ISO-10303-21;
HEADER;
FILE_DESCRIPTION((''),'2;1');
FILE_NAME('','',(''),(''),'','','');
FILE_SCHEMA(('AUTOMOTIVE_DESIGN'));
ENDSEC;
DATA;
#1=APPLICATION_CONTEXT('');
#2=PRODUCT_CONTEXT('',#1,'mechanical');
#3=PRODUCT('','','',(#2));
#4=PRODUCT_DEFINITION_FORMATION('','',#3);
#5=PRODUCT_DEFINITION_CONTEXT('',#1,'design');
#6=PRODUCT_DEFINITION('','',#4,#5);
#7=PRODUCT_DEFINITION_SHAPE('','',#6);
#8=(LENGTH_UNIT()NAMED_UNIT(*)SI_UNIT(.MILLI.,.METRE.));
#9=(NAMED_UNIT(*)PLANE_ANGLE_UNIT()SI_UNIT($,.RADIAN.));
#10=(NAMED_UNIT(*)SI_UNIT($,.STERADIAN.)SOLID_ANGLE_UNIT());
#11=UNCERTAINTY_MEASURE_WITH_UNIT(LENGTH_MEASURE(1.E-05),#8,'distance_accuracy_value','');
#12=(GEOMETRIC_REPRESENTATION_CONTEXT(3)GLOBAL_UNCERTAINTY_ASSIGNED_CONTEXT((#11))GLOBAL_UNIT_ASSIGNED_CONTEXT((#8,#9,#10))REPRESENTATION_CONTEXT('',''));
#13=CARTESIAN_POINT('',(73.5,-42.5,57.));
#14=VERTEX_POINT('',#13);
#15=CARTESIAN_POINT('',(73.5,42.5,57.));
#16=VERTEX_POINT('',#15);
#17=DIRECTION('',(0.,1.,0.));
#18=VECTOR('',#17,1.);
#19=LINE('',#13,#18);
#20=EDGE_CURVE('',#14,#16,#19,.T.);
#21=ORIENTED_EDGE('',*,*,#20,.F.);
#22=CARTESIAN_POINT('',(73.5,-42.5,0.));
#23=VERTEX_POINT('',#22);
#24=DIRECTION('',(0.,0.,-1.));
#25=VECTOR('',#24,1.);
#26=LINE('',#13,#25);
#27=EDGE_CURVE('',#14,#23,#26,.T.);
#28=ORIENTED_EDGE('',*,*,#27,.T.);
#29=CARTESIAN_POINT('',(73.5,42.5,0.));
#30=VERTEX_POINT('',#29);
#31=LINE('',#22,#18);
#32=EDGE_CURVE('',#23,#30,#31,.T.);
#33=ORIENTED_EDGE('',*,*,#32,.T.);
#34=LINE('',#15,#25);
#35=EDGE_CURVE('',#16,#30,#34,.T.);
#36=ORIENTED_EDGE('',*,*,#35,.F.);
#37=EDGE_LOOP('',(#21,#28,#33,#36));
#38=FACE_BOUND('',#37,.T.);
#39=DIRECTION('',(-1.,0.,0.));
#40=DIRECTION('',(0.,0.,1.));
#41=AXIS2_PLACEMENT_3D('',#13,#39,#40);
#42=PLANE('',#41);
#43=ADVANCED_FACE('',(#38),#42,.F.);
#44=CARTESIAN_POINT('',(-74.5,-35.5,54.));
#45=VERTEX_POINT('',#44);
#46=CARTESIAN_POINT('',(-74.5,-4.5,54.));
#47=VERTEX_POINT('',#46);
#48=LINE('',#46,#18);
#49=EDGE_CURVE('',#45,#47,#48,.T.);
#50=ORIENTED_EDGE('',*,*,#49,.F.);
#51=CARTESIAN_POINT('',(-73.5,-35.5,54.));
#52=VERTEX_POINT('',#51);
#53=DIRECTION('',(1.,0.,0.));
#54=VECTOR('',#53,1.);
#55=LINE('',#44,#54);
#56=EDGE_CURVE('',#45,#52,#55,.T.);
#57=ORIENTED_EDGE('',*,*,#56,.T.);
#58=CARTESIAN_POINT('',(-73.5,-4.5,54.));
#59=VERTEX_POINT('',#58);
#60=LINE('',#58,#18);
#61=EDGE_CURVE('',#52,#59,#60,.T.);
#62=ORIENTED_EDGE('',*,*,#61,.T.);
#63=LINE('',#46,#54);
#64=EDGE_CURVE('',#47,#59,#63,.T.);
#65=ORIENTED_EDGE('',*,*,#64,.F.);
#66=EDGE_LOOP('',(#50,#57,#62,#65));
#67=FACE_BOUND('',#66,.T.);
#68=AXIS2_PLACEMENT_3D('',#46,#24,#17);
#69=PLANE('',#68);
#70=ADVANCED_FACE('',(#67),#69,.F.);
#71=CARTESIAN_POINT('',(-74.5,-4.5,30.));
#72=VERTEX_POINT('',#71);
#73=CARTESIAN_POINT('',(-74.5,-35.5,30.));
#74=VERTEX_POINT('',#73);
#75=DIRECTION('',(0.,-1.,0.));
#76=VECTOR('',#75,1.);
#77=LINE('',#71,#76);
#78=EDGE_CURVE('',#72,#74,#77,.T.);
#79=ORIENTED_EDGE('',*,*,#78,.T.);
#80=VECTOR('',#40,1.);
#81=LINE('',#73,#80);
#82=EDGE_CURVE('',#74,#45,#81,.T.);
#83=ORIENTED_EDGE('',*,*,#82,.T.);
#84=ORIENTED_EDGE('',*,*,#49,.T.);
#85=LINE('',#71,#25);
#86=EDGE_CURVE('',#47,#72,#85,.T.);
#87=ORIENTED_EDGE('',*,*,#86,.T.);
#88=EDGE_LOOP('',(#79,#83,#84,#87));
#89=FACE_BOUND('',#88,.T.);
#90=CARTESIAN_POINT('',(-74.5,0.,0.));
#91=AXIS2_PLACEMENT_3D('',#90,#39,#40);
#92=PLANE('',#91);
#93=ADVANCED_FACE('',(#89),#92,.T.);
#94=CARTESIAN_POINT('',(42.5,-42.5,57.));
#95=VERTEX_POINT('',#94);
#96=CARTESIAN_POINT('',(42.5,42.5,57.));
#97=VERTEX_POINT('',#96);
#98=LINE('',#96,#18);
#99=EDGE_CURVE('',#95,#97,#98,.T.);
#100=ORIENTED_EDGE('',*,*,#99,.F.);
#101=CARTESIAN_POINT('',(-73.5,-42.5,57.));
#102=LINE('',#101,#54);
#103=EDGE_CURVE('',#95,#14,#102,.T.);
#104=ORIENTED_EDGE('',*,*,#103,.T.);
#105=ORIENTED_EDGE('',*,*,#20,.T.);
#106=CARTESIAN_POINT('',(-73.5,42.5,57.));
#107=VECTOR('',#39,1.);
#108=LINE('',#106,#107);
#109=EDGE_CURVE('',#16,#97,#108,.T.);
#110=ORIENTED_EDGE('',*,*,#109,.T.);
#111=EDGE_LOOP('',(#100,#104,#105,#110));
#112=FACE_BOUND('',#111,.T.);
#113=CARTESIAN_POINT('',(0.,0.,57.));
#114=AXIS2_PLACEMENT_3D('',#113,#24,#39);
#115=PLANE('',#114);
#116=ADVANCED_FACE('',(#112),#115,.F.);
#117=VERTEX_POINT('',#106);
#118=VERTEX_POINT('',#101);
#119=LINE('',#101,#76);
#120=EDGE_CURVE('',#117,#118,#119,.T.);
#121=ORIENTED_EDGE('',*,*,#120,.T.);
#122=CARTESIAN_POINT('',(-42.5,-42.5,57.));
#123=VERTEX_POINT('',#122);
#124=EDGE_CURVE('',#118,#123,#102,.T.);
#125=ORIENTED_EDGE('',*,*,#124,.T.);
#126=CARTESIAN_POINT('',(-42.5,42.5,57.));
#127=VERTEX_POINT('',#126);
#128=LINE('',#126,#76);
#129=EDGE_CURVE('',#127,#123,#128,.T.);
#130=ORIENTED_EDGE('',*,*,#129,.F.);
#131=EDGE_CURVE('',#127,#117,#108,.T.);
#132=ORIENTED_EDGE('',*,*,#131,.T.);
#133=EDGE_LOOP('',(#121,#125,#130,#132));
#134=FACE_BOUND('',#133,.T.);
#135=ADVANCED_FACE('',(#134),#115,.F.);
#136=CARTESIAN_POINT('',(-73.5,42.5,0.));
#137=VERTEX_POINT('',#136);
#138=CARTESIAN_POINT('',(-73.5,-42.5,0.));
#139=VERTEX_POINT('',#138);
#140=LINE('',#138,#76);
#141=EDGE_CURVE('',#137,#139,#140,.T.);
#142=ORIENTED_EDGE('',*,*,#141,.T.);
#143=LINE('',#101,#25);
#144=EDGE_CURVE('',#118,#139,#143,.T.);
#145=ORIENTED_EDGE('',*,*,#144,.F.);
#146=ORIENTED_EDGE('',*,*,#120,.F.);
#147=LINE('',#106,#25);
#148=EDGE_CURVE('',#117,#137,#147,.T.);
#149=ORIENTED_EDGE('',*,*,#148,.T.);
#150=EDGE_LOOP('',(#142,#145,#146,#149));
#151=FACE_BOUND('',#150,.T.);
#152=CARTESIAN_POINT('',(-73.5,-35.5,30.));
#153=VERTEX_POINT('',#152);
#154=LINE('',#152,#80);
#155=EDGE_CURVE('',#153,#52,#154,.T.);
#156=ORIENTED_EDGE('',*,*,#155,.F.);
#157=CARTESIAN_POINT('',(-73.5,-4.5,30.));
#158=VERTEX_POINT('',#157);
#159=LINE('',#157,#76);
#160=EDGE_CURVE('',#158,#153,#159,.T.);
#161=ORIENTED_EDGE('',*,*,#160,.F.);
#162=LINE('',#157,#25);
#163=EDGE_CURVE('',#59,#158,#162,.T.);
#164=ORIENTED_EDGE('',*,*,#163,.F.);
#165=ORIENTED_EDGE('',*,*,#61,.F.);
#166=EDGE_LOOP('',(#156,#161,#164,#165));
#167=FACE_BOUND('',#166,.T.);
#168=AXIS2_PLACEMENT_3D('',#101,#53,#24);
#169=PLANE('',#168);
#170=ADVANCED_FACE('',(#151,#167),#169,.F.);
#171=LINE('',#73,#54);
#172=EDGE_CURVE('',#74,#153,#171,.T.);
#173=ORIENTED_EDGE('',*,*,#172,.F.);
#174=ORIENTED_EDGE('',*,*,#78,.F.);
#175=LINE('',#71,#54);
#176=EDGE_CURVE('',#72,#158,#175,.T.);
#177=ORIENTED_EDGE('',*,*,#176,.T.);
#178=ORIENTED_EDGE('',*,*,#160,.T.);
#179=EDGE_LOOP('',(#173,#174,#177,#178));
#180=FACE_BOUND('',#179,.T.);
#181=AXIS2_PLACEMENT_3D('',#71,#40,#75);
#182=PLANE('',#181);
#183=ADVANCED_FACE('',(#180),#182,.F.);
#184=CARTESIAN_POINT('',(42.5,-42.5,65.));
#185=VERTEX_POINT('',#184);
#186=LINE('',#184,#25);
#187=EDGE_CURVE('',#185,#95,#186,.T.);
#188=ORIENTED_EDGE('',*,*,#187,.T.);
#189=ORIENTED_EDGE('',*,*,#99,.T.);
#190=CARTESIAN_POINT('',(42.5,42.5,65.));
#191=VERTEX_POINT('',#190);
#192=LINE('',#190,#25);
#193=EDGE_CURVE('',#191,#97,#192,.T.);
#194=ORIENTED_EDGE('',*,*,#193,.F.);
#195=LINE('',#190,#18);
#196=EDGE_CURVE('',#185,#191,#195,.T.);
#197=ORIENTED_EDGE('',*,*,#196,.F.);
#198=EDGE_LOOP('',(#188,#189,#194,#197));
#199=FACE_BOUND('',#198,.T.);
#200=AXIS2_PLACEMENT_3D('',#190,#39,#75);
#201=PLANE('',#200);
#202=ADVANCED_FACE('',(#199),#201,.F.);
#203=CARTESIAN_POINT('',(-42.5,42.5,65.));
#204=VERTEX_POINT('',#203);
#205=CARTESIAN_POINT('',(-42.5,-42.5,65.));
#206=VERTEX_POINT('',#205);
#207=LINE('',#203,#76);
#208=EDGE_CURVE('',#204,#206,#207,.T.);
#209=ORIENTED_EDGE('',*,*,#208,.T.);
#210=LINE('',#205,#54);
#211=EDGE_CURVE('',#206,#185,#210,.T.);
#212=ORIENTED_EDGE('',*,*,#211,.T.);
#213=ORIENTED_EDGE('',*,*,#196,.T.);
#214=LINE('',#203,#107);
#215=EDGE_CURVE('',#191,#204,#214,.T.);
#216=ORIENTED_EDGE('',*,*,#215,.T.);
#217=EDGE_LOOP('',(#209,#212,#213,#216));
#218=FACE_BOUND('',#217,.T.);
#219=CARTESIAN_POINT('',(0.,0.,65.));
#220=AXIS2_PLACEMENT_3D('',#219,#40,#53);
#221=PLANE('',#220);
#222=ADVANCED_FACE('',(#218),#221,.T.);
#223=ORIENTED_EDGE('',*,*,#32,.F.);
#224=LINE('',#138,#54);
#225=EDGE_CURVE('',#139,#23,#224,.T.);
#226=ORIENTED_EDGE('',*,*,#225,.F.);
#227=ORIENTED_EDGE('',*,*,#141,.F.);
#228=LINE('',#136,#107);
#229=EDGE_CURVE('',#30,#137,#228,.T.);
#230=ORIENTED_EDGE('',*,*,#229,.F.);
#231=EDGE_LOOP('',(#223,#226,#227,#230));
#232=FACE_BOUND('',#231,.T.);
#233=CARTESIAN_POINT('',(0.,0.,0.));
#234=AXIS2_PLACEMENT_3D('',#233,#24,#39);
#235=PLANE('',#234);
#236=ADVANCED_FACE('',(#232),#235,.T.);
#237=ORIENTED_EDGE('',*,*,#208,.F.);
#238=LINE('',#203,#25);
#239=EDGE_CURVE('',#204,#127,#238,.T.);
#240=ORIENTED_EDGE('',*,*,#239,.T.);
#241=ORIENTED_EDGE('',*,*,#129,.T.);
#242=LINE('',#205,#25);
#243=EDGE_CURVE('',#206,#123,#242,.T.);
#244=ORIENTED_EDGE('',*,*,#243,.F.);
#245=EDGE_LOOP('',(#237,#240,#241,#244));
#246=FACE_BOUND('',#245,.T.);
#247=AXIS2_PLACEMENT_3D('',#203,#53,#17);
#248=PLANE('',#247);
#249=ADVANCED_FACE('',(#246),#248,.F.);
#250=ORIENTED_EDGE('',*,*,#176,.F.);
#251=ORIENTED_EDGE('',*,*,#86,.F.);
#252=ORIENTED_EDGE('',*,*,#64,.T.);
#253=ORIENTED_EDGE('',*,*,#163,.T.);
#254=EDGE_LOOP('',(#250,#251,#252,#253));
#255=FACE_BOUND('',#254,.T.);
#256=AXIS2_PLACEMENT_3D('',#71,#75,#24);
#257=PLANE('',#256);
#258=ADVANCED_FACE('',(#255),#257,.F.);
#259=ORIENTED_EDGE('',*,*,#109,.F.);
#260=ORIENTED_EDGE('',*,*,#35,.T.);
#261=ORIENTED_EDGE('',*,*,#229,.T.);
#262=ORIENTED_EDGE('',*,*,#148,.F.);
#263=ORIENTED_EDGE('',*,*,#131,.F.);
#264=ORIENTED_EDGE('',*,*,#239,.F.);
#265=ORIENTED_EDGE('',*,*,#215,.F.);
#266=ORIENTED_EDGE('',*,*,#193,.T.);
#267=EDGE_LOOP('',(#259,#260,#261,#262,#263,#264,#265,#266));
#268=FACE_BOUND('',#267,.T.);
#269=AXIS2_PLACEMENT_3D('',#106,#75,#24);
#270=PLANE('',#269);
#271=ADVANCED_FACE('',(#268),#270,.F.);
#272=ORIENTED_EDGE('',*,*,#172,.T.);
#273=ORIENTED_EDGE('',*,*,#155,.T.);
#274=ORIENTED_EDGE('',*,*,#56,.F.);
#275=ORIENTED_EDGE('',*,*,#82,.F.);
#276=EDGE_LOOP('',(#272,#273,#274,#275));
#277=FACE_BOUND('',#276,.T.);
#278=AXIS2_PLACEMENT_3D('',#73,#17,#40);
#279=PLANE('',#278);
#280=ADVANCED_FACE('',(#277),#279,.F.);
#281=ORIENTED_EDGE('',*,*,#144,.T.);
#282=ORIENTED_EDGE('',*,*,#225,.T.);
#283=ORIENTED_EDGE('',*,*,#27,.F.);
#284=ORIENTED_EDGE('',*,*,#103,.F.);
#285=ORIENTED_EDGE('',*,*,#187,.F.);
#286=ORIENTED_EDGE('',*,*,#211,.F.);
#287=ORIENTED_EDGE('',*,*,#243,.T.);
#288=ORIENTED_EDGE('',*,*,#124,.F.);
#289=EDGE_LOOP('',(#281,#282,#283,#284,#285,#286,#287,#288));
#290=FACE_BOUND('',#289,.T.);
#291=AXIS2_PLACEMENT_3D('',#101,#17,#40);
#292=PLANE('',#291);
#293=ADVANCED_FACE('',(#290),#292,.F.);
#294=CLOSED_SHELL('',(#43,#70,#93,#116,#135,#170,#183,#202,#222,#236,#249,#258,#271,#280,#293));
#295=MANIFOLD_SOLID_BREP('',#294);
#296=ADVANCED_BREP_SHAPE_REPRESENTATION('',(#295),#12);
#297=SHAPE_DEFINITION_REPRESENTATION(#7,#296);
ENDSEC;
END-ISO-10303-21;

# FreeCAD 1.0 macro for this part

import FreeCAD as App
import Part
import Sketcher

doc = App.newDocument("Part")
params = doc.addObject("Spreadsheet::Sheet", "Params")
for row, (alias, value) in enumerate([
    ("sketch1_width", "147 mm"),
    ("sketch1_height", "85 mm"),
    ("pad1_length", "57 mm"),
    ("sketch2_width", "85 mm"),
    ("pad2_length", "8 mm"),
    ("sketch3_width", "31 mm"),
    ("sketch3_height", "24 mm"),
    ("pad3_length", "1 mm"),
], start=1):
    params.set(f"A{row}", alias)
    params.set(f"B{row}", "=" + value)
    params.setAlias(f"B{row}", alias)

body = doc.addObject("PartDesign::Body", "Body")

sketch1 = body.newObject("Sketcher::SketchObject", "Sketch")
sketch1.AttachmentSupport = (doc.getObject("XY_Plane"), [""])
sketch1.MapMode = "FlatFace"
sketch1.addGeometry([
    Part.LineSegment(App.Vector(-73.5, 42.5, 0), App.Vector(-73.5, -42.5, 0)),
    Part.LineSegment(App.Vector(-73.5, -42.5, 0), App.Vector(73.5, -42.5, 0)),
    Part.LineSegment(App.Vector(73.5, -42.5, 0), App.Vector(73.5, 42.5, 0)),
    Part.LineSegment(App.Vector(73.5, 42.5, 0), App.Vector(-73.5, 42.5, 0)),
], False)
sketch1.addConstraint([
    Sketcher.Constraint("Coincident", 0, 2, 1, 1),
    Sketcher.Constraint("Coincident", 1, 2, 2, 1),
    Sketcher.Constraint("Coincident", 2, 2, 3, 1),
    Sketcher.Constraint("Coincident", 3, 2, 0, 1),
    Sketcher.Constraint("Vertical", 0),
    Sketcher.Constraint("Horizontal", 1),
    Sketcher.Constraint("Vertical", 2),
    Sketcher.Constraint("Horizontal", 3),
    Sketcher.Constraint("Symmetric", 0, 2, 2, 2, -1, 1),
    Sketcher.Constraint("DistanceX", 1, 1, 1, 2, 147.0),
    Sketcher.Constraint("DistanceY", 0, 2, 0, 1, 85.0),
])
sketch1.setExpression("Constraints[9]", "Params.sketch1_width")
sketch1.setExpression("Constraints[10]", "Params.sketch1_height")
pad1 = body.newObject("PartDesign::Pad", "Pad")
pad1.Profile = sketch1
pad1.setExpression("Length", "Params.pad1_length")

sketch2 = body.newObject("Sketcher::SketchObject", "Sketch001")
sketch2.AttachmentSupport = (doc.getObject("XY_Plane"), [""])
sketch2.MapMode = "FlatFace"
sketch2.AttachmentOffset = App.Placement(App.Vector(0, 0, 57), App.Rotation())
sketch2.addGeometry([
    Part.LineSegment(App.Vector(-42.5, 42.5, 0), App.Vector(-42.5, -42.5, 0)),
    Part.LineSegment(App.Vector(-42.5, -42.5, 0), App.Vector(42.5, -42.5, 0)),
    Part.LineSegment(App.Vector(42.5, -42.5, 0), App.Vector(42.5, 42.5, 0)),
    Part.LineSegment(App.Vector(42.5, 42.5, 0), App.Vector(-42.5, 42.5, 0)),
], False)
sketch2.addConstraint([
    Sketcher.Constraint("Coincident", 0, 2, 1, 1),
    Sketcher.Constraint("Coincident", 1, 2, 2, 1),
    Sketcher.Constraint("Coincident", 2, 2, 3, 1),
    Sketcher.Constraint("Coincident", 3, 2, 0, 1),
    Sketcher.Constraint("Vertical", 0),
    Sketcher.Constraint("Horizontal", 1),
    Sketcher.Constraint("Vertical", 2),
    Sketcher.Constraint("Horizontal", 3),
    Sketcher.Constraint("Symmetric", 0, 2, 2, 2, -1, 1),
    Sketcher.Constraint("Equal", 3, 0),
    Sketcher.Constraint("DistanceX", 1, 1, 1, 2, 85.0),
])
sketch2.setExpression("Constraints[10]", "Params.sketch2_width")
pad2 = body.newObject("PartDesign::Pad", "Pad001")
pad2.Profile = sketch2
pad2.setExpression("Length", "Params.pad2_length")

sketch3 = body.newObject("Sketcher::SketchObject", "Sketch002")
sketch3.AttachmentSupport = (doc.getObject("YZ_Plane"), [""])
sketch3.MapMode = "FlatFace"
sketch3.AttachmentOffset = App.Placement(App.Vector(0, 0, -73.5), App.Rotation())
sketch3.addGeometry([
    Part.LineSegment(App.Vector(-4.5, 30, 0), App.Vector(-35.5, 30, 0)),
    Part.LineSegment(App.Vector(-35.5, 30, 0), App.Vector(-35.5, 54, 0)),
    Part.LineSegment(App.Vector(-35.5, 54, 0), App.Vector(-4.5, 54, 0)),
    Part.LineSegment(App.Vector(-4.5, 54, 0), App.Vector(-4.5, 30, 0)),
], False)
sketch3.addConstraint([
    Sketcher.Constraint("Coincident", 0, 2, 1, 1),
    Sketcher.Constraint("Coincident", 1, 2, 2, 1),
    Sketcher.Constraint("Coincident", 2, 2, 3, 1),
    Sketcher.Constraint("Coincident", 3, 2, 0, 1),
    Sketcher.Constraint("Horizontal", 0),
    Sketcher.Constraint("Vertical", 1),
    Sketcher.Constraint("Horizontal", 2),
    Sketcher.Constraint("Vertical", 3),
    Sketcher.Constraint("DistanceX", 0, 2, 0, 1, 31.0),
    Sketcher.Constraint("DistanceY", 1, 1, 1, 2, 24.0),
    Sketcher.Constraint("DistanceY", -1, 1, 0, 2, 30.0),
    Sketcher.Constraint("DistanceX", 0, 2, -1, 1, 35.5),
])
sketch3.setExpression("Constraints[8]", "Params.sketch3_width")
sketch3.setExpression("Constraints[9]", "Params.sketch3_height")
pad3 = body.newObject("PartDesign::Pad", "Pad002")
pad3.Profile = sketch3
pad3.setExpression("Length", "Params.pad3_length")
pad3.Reversed = True

doc.recompute()
